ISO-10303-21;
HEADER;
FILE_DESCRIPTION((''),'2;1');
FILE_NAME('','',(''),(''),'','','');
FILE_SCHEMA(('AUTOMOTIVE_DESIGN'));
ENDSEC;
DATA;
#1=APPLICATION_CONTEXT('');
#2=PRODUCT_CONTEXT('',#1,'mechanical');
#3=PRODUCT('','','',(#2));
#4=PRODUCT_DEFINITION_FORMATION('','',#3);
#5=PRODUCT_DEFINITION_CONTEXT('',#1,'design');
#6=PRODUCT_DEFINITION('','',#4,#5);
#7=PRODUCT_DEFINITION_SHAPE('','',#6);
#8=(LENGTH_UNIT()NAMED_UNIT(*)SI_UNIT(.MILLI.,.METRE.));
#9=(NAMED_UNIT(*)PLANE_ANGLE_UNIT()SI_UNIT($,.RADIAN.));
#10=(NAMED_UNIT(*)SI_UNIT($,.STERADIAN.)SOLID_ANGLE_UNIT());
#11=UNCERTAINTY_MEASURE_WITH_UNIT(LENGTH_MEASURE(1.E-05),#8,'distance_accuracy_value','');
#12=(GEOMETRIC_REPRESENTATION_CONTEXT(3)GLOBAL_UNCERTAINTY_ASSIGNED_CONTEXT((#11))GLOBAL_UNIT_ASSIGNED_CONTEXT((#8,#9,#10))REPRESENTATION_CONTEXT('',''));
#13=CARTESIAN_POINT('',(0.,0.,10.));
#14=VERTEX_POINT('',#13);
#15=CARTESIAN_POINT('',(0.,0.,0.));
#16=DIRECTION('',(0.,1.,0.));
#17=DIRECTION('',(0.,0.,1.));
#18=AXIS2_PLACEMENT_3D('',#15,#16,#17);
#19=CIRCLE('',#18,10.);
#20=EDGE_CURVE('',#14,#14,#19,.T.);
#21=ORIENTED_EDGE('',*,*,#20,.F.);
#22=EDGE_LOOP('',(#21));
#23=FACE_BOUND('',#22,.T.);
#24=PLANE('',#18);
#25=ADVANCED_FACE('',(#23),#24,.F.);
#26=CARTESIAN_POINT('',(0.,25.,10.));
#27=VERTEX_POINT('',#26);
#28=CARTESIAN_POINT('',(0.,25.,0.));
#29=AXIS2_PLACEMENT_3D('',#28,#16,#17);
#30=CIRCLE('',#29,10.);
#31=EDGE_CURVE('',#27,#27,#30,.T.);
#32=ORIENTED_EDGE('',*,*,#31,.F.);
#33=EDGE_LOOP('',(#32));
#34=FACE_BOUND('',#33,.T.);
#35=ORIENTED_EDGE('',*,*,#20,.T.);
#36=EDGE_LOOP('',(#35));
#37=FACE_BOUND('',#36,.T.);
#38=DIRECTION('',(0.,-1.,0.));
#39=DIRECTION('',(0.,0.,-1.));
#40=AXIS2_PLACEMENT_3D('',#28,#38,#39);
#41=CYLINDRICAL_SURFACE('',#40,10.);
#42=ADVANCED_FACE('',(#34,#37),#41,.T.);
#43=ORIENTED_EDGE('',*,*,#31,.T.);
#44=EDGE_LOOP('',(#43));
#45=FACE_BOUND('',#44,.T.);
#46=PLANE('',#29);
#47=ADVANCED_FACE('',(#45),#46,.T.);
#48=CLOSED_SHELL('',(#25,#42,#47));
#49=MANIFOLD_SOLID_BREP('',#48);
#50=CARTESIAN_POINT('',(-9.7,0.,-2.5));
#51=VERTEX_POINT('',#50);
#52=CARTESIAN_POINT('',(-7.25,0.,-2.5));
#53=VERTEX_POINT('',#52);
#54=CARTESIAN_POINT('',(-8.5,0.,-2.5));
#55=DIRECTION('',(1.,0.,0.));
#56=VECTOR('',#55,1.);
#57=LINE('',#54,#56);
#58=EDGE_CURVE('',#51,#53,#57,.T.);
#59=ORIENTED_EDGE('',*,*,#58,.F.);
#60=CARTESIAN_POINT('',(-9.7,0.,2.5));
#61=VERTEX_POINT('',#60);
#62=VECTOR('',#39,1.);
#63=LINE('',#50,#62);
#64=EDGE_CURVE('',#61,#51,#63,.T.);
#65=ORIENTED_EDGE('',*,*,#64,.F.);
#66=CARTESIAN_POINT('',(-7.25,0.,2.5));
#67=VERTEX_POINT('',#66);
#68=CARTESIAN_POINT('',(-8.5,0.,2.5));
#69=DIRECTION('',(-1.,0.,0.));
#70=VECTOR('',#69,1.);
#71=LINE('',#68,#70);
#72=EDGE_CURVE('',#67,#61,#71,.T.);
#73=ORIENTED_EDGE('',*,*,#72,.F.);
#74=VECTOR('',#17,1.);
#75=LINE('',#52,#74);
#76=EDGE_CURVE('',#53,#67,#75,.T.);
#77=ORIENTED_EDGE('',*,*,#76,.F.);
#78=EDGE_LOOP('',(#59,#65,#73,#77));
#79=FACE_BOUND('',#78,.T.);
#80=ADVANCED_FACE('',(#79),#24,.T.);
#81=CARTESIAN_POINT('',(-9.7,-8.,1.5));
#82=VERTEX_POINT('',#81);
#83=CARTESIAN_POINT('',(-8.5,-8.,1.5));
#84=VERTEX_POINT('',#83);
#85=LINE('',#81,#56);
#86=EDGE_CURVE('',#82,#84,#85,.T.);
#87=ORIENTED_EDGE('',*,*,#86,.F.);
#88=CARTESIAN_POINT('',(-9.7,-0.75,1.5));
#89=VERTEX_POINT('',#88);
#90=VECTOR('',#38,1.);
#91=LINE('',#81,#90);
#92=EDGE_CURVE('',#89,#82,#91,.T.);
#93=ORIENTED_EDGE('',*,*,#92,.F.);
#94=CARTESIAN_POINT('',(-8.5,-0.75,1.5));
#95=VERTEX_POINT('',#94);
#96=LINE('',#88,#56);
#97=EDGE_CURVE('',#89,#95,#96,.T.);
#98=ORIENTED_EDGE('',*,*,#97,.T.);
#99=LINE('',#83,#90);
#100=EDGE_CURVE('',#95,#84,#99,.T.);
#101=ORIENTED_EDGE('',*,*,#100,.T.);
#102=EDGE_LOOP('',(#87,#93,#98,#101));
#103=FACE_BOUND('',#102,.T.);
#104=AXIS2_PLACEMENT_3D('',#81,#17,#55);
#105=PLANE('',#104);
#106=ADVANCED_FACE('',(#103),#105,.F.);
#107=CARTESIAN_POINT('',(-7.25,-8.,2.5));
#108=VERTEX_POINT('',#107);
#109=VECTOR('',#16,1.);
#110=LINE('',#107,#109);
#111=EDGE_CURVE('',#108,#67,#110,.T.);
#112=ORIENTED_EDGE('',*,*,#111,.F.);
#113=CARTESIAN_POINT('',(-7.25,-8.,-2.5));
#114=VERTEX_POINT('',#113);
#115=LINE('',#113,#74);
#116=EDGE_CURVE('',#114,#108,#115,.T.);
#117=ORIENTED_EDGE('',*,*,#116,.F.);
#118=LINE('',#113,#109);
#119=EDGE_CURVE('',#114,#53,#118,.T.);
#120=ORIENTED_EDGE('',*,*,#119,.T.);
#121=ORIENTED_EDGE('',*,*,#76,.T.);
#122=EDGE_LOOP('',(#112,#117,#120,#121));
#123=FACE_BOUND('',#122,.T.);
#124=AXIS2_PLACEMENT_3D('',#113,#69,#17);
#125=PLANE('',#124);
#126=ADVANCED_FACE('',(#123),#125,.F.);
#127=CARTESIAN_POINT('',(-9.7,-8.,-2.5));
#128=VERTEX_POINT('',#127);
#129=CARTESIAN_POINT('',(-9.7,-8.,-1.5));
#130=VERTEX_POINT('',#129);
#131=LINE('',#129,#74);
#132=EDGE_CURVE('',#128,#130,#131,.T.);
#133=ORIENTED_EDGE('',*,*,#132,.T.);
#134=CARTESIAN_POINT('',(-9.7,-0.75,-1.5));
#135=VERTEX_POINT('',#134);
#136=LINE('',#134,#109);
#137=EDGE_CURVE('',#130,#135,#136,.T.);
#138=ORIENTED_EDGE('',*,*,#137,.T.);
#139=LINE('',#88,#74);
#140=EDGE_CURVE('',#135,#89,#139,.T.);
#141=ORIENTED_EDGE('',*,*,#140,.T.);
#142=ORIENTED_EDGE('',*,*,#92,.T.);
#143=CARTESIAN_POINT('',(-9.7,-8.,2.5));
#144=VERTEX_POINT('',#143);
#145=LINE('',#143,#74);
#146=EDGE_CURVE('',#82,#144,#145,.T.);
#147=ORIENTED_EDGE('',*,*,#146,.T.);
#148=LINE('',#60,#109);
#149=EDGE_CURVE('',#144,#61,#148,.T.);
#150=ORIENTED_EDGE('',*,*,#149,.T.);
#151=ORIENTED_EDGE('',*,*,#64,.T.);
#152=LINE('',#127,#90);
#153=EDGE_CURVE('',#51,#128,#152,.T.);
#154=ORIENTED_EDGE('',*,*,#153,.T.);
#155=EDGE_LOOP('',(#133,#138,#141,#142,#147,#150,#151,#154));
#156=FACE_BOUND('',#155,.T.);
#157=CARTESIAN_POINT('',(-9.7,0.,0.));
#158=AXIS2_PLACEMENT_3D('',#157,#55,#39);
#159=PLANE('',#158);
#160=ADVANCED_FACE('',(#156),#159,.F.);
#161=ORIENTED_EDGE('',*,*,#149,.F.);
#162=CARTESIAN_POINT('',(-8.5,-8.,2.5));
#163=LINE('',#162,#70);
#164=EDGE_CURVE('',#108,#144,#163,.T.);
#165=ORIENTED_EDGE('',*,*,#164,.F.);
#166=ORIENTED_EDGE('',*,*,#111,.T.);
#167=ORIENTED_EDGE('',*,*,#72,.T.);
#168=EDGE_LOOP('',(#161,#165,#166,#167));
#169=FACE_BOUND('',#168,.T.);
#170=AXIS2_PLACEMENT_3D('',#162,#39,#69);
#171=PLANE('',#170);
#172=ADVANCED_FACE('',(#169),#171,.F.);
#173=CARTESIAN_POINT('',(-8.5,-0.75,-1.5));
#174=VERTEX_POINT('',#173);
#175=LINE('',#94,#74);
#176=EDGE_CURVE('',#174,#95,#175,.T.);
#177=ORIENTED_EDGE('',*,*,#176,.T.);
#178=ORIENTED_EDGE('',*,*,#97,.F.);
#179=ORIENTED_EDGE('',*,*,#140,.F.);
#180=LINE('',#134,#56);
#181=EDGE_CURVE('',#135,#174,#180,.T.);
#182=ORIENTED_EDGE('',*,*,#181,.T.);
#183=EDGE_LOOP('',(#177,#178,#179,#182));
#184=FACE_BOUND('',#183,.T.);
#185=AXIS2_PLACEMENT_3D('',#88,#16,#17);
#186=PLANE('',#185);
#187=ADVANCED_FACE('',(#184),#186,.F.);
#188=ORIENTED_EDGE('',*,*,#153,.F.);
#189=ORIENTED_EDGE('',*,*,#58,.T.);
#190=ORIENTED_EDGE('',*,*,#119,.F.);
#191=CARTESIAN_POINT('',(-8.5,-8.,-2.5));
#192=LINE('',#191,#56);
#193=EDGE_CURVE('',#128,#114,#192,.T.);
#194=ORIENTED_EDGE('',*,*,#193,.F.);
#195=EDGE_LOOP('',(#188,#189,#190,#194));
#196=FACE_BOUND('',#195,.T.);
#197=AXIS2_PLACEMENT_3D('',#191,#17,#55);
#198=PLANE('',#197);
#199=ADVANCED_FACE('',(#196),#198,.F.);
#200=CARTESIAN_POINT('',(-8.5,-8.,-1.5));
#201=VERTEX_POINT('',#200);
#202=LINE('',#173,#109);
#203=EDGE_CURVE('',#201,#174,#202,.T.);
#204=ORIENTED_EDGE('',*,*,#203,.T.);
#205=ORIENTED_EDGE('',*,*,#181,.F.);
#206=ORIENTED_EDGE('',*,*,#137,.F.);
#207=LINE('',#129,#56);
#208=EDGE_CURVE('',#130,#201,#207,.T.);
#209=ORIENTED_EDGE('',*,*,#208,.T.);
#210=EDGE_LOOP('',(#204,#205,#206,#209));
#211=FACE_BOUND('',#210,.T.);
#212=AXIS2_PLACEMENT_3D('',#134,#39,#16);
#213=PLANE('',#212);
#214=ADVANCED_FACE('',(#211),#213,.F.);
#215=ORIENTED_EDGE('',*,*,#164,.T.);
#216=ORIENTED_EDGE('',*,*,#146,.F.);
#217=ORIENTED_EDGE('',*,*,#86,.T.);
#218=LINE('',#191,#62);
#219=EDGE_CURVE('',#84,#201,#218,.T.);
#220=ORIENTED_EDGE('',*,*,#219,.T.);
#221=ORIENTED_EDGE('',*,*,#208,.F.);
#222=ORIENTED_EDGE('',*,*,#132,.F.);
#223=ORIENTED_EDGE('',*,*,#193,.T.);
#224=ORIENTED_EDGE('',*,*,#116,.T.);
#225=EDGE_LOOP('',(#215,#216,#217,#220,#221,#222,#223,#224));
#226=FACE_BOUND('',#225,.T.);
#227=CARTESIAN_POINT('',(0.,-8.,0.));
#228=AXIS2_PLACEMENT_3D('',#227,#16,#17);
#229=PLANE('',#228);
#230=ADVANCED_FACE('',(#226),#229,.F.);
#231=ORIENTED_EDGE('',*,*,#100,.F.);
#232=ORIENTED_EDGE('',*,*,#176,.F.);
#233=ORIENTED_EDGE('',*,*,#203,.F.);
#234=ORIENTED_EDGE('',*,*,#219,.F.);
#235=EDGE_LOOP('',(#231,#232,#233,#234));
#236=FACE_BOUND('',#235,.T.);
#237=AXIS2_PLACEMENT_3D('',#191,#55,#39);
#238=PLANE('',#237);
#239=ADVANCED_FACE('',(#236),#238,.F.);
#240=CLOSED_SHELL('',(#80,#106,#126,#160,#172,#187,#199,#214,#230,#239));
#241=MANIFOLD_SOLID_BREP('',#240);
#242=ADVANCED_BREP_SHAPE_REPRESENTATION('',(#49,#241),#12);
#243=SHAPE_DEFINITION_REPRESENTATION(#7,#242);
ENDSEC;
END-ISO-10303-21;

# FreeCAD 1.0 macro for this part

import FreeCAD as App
import Part
import Sketcher
Q = App.Units.Quantity

doc = App.newDocument("Part")
params = doc.addObject("Spreadsheet::Sheet", "Params")
for row, (alias, value) in enumerate([
    ("sketch1_diameter", "20 mm"),
    ("pad1_length", "25 mm"),
    ("sketch2_height", "5 mm"),
    ("sketch2_width", "1.25 mm"),
    ("pad2_length", "8 mm"),
    ("sketch3_width", "8 mm"),
    ("sketch3_height", "1 mm"),
    ("sketch3_height2", "3 mm"),
    ("sketch3_width2", "7.25 mm"),
    ("pad3_length", "1.2 mm"),
], start=1):
    params.set(f"A{row}", alias)
    params.set(f"B{row}", "=" + value)
    params.setAlias(f"B{row}", alias)

body = doc.addObject("PartDesign::Body", "Body")

# Sketch on XZ plane
sketch1 = body.newObject("Sketcher::SketchObject", "Sketch")
sketch1.AttachmentSupport = (doc.getObject("XZ_Plane"), [""])
sketch1.MapMode = "FlatFace"
sketch1.addGeometry(Part.Circle(App.Vector(0, 0, 0), App.Vector(0, 0, 1), 10), False)
sketch1.addConstraint([
    Sketcher.Constraint("Coincident", 0, 3, -1, 1),
    Sketcher.Constraint("Diameter", 0, Q("20 mm")),
])
sketch1.setExpression("Constraints[1]", "Params.sketch1_diameter")
pad1 = body.newObject("PartDesign::Pad", "Pad")
pad1.Profile = sketch1
pad1.setExpression("Length", "Params.pad1_length")
pad1.Reversed = True
body2 = doc.addObject("PartDesign::Body", "Body001")

# Sketch on XZ plane
sketch2 = body2.newObject("Sketcher::SketchObject", "Sketch001")
sketch2.AttachmentSupport = (doc.getObject("XZ_Plane001"), [""])
sketch2.MapMode = "FlatFace"
sketch2.addGeometry([
    Part.LineSegment(App.Vector(-7.25, -2.5, 0), App.Vector(-7.25, 2.5, 0)),
    Part.LineSegment(App.Vector(-7.25, 2.5, 0), App.Vector(-8.5, 2.5, 0)),
    Part.LineSegment(App.Vector(-8.5, 2.5, 0), App.Vector(-8.5, -2.5, 0)),
    Part.LineSegment(App.Vector(-8.5, -2.5, 0), App.Vector(-7.25, -2.5, 0)),
], False)
sketch2.addConstraint([
    Sketcher.Constraint("Coincident", 0, 2, 1, 1),
    Sketcher.Constraint("Coincident", 1, 2, 2, 1),
    Sketcher.Constraint("Coincident", 2, 2, 3, 1),
    Sketcher.Constraint("Coincident", 3, 2, 0, 1),
    Sketcher.Constraint("Vertical", 0),
    Sketcher.Constraint("Horizontal", 1),
    Sketcher.Constraint("Vertical", 2),
    Sketcher.Constraint("Horizontal", 3),
    Sketcher.Constraint("DistanceY", 0, 1, 0, 2, Q("5 mm")),
    Sketcher.Constraint("DistanceX", 1, 2, 1, 1, Q("1.25 mm")),
    Sketcher.Constraint("DistanceY", -1, 1, 0, 2, Q("2.5 mm")),
    Sketcher.Constraint("DistanceX", 1, 2, -1, 1, Q("8.5 mm")),
])
sketch2.setExpression("Constraints[8]", "Params.sketch2_height")
sketch2.setExpression("Constraints[9]", "Params.sketch2_width")
pad2 = body2.newObject("PartDesign::Pad", "Pad001")
pad2.Profile = sketch2
pad2.setExpression("Length", "Params.pad2_length")

# Sketch on YZ plane
sketch3 = body2.newObject("Sketcher::SketchObject", "Sketch002")
sketch3.AttachmentSupport = (doc.getObject("YZ_Plane001"), [""])
sketch3.MapMode = "FlatFace"
sketch3.AttachmentOffset = App.Placement(App.Vector(0, 0, -8.5), App.Rotation())
sketch3.addGeometry([
    Part.LineSegment(App.Vector(0, -2.5, 0), App.Vector(-8, -2.5, 0)),  # 0
    Part.LineSegment(App.Vector(-8, -2.5, 0), App.Vector(-8, -1.5, 0)),  # 1
    Part.LineSegment(App.Vector(-8, -1.5, 0), App.Vector(-0.75, -1.5, 0)),  # 2
    Part.LineSegment(App.Vector(-0.75, -1.5, 0), App.Vector(-0.75, 1.5, 0)),  # 3
    Part.LineSegment(App.Vector(-0.75, 1.5, 0), App.Vector(-8, 1.5, 0)),  # 4
    Part.LineSegment(App.Vector(-8, 1.5, 0), App.Vector(-8, 2.5, 0)),  # 5
    Part.LineSegment(App.Vector(-8, 2.5, 0), App.Vector(0, 2.5, 0)),  # 6
    Part.LineSegment(App.Vector(0, 2.5, 0), App.Vector(0, -2.5, 0)),  # 7
], False)
sketch3.addConstraint([
    Sketcher.Constraint("Coincident", 0, 2, 1, 1),
    Sketcher.Constraint("Coincident", 1, 2, 2, 1),
    Sketcher.Constraint("Coincident", 2, 2, 3, 1),
    Sketcher.Constraint("Coincident", 3, 2, 4, 1),
    Sketcher.Constraint("Coincident", 4, 2, 5, 1),
    Sketcher.Constraint("Coincident", 5, 2, 6, 1),
    Sketcher.Constraint("Coincident", 6, 2, 7, 1),
    Sketcher.Constraint("Coincident", 7, 2, 0, 1),
    Sketcher.Constraint("Horizontal", 0),
    Sketcher.Constraint("Vertical", 1),
    Sketcher.Constraint("Horizontal", 2),
    Sketcher.Constraint("Vertical", 3),
    Sketcher.Constraint("Horizontal", 4),
    Sketcher.Constraint("Vertical", 5),
    Sketcher.Constraint("Horizontal", 6),
    Sketcher.Constraint("Vertical", 7),
    Sketcher.Constraint("Symmetric", 6, 2, 7, 2, -1, 1),
    Sketcher.Constraint("Symmetric", 1, 2, 4, 2, -1),
    Sketcher.Constraint("DistanceX", 0, 2, 0, 1, Q("8 mm")),
    Sketcher.Constraint("DistanceY", 1, 1, 1, 2, Q("1 mm")),
    Sketcher.Constraint("DistanceY", 3, 1, 3, 2, Q("3 mm")),
    Sketcher.Constraint("DistanceX", 2, 1, 2, 2, Q("7.25 mm")),
])
sketch3.setExpression("Constraints[18]", "Params.sketch3_width")
sketch3.setExpression("Constraints[19]", "Params.sketch3_height")
sketch3.setExpression("Constraints[20]", "Params.sketch3_height2")
sketch3.setExpression("Constraints[21]", "Params.sketch3_width2")
pad3 = body2.newObject("PartDesign::Pad", "Pad002")
pad3.Profile = sketch3
pad3.setExpression("Length", "Params.pad3_length")
pad3.Reversed = True

doc.recompute()
